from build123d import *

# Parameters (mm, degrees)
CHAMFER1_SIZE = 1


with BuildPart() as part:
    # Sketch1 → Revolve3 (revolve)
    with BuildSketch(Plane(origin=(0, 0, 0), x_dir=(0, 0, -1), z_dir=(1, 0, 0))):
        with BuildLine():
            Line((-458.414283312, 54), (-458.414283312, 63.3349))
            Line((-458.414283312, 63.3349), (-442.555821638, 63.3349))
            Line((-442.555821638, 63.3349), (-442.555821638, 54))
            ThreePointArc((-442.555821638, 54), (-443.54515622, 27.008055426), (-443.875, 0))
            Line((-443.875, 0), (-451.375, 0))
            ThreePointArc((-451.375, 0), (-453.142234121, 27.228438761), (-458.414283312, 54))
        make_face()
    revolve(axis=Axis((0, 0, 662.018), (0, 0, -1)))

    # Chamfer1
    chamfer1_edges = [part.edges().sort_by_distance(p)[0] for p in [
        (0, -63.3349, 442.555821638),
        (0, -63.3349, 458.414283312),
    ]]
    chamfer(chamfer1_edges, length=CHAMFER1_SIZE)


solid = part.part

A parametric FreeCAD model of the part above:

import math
import FreeCAD as App
import Part
import Sketcher

V = App.Vector


def edges_at(feature, points):
    """Names of the edges that pass closest to the given points."""
    edges = feature.Shape.Edges
    near = lambda p: min(range(len(edges)), key=lambda i: edges[i].distToShape(Part.Vertex(*p))[0])
    return sorted({f"Edge{near(p) + 1}" for p in points})

doc = App.newDocument("Part")
body = doc.addObject("PartDesign::Body", "Body")

sketch1 = body.newObject("Sketcher::SketchObject", "Sketch")
sketch1.AttachmentSupport = (doc.getObject("YZ_Plane"), [""])
sketch1.MapMode = "FlatFace"
sketch1.addGeometry(Part.LineSegment(V(63, 458, 0), V(54, 458, 0)), False)
sketch1.addGeometry(Part.ArcOfCircle(Part.Circle(V(0, 662, 0), V(0, 0, 1), 211), math.radians(-90), math.radians(-75.15)), False)
sketch1.addGeometry(Part.LineSegment(V(0, 451, 0), V(0, 444, 0)), False)
sketch1.addGeometry(Part.ArcOfCircle(Part.Circle(V(0, -662, 0), V(0, 0, 1), 1106), math.radians(87.2), math.radians(90)), False)
sketch1.addGeometry(Part.LineSegment(V(54, 443, 0), V(63, 443, 0)), False)
sketch1.addGeometry(Part.LineSegment(V(63, 443, 0), V(63, 458, 0)), False)
sketch1.addConstraint(Sketcher.Constraint("Coincident", 0, 2, 1, 2))
sketch1.addConstraint(Sketcher.Constraint("Coincident", 1, 1, 2, 1))
sketch1.addConstraint(Sketcher.Constraint("Coincident", 2, 2, 3, 2))
sketch1.addConstraint(Sketcher.Constraint("Coincident", 3, 1, 4, 1))
sketch1.addConstraint(Sketcher.Constraint("Coincident", 4, 2, 5, 1))
sketch1.addConstraint(Sketcher.Constraint("Coincident", 5, 2, 0, 1))
sketch1.addConstraint(Sketcher.Constraint("Horizontal", 0))
sketch1.addConstraint(Sketcher.Constraint("Vertical", 2))
sketch1.addConstraint(Sketcher.Constraint("Horizontal", 4))
sketch1.addConstraint(Sketcher.Constraint("Vertical", 5))
sketch1.addConstraint(Sketcher.Constraint("Symmetric", 1, 3, 3, 3, -1, 1))
sketch1.addConstraint(Sketcher.Constraint("PointOnObject", 1, 3, -2))
sketch1.addConstraint(Sketcher.Constraint("PointOnObject", 1, 1, -2))
sketch1.addConstraint(Sketcher.Constraint("Equal", 0, 4))
sketch1.addConstraint(Sketcher.Constraint("DistanceY", 2, 2, 2, 1, 7.5))
sketch1.addConstraint(Sketcher.Constraint("DistanceX", -1, 1, 0, 2, 54.0))
sketch1.addConstraint(Sketcher.Constraint("Radius", 1, 210.643))
sketch1.addConstraint(Sketcher.Constraint("Radius", 3, 1105.892999))
sketch1.addConstraint(Sketcher.Constraint("DistanceX", 0, 2, 0, 1, 9.3349))
revolution = body.newObject("PartDesign::Revolution", "Revolution")
revolution.Profile = sketch1
revolution.ReferenceAxis = (sketch1, ["V_Axis"])
revolution.Angle = 360
doc.recompute()

chamfer = body.newObject("PartDesign::Chamfer", "Chamfer")
chamfer.Base = (revolution, edges_at(revolution, [(0, -63.335, 442.556), (0, -63.335, 458.414)]))
chamfer.Size = 1

doc.recompute()
